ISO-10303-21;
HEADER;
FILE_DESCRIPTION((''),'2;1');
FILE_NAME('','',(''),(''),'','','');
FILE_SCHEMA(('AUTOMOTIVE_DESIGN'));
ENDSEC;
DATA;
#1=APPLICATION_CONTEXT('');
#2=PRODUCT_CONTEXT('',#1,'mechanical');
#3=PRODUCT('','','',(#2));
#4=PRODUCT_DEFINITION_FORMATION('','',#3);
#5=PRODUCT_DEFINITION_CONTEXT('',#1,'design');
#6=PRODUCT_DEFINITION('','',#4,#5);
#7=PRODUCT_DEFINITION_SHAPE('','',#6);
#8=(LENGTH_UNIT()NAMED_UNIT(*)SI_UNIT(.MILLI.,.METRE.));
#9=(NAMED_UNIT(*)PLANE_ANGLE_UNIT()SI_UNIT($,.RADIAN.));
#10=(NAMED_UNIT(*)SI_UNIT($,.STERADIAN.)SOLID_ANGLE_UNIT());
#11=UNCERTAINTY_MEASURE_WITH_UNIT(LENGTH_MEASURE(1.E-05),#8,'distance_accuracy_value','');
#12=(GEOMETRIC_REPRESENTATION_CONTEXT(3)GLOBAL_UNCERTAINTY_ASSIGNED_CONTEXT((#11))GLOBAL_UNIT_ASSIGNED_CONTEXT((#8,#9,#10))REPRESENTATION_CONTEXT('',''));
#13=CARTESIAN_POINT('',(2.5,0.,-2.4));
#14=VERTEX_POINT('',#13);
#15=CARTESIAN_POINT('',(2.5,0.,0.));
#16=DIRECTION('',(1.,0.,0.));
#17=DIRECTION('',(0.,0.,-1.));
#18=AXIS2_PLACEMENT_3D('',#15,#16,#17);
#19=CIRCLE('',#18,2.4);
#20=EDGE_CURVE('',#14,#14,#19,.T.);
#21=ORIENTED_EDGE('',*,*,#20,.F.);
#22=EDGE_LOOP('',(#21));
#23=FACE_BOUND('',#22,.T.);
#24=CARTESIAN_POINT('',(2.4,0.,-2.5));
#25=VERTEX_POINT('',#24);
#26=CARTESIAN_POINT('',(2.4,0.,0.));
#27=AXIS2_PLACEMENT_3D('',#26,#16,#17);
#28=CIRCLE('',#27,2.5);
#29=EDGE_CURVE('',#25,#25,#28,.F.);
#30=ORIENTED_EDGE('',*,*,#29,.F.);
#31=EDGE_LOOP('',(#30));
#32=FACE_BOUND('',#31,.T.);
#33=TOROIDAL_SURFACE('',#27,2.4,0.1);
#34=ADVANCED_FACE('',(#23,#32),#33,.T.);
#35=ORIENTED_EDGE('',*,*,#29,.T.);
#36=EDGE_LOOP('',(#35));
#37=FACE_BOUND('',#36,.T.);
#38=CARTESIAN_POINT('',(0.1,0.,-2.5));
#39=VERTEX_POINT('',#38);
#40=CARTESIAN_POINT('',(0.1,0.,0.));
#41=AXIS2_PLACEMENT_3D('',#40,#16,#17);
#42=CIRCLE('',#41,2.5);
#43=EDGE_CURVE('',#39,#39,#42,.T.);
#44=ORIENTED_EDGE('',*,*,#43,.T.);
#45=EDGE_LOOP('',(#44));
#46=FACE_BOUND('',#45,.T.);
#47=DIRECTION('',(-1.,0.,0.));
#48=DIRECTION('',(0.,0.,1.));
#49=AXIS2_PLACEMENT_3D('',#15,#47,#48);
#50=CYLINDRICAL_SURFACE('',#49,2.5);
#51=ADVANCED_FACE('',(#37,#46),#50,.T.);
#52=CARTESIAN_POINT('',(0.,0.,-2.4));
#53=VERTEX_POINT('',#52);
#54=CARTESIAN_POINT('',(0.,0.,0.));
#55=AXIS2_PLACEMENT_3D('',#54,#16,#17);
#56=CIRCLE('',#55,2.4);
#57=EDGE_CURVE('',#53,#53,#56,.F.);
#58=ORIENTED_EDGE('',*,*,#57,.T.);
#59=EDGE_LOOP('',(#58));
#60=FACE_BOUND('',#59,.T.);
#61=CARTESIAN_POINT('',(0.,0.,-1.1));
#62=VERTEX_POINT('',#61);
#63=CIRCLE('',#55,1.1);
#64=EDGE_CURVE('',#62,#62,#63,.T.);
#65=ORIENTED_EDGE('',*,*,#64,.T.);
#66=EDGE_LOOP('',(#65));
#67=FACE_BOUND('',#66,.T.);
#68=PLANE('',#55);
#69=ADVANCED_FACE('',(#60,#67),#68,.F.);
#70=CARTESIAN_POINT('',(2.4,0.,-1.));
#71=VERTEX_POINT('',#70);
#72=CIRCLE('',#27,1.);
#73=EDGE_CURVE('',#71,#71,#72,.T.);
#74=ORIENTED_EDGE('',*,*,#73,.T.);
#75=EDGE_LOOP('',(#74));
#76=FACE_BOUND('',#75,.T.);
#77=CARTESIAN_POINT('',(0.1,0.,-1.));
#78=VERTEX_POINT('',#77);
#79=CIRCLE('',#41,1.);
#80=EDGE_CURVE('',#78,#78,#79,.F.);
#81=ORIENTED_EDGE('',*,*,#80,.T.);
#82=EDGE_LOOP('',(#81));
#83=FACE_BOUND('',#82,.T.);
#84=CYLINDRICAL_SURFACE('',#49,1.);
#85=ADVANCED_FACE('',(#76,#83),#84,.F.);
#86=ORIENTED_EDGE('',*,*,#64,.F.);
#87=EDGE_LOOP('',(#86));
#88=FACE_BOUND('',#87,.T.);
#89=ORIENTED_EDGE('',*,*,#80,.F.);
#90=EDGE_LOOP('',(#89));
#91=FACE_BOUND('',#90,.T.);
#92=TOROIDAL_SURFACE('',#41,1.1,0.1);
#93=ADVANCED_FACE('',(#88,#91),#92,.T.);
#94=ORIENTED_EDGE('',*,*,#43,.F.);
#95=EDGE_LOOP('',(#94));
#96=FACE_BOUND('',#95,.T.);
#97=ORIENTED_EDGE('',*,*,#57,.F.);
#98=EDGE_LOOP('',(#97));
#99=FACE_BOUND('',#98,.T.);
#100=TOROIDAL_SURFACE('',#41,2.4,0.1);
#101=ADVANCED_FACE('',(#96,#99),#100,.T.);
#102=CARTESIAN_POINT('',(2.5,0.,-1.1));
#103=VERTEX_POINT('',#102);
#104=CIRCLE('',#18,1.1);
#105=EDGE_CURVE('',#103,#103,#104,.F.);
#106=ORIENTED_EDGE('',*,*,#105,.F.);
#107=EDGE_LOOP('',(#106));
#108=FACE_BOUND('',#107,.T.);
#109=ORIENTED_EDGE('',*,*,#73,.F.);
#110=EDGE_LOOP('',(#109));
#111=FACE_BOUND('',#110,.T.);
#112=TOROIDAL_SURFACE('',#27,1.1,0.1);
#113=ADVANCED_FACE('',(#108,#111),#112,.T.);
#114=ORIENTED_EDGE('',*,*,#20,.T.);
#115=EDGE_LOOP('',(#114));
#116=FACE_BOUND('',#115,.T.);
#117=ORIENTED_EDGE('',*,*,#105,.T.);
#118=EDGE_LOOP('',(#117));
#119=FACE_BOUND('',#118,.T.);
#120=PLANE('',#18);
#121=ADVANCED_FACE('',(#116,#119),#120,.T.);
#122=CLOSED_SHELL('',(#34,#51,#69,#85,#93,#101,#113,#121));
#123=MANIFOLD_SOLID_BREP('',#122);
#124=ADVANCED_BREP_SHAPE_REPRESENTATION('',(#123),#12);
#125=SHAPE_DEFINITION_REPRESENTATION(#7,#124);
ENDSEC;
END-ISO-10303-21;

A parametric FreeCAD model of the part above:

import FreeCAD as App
import Part
import Sketcher

V = App.Vector
Q = App.Units.Quantity


def edges_at(feature, points):
    """Names of the edges that pass closest to the given points."""
    edges = feature.Shape.Edges
    near = lambda p: min(range(len(edges)), key=lambda i: edges[i].distToShape(Part.Vertex(*p))[0])
    return sorted({f"Edge{near(p) + 1}" for p in points})

doc = App.newDocument("Part")
body = doc.addObject("PartDesign::Body", "Body")

# Sketch on YZ plane
sketch1 = body.newObject("Sketcher::SketchObject", "Sketch")
sketch1.AttachmentSupport = (doc.getObject("YZ_Plane"), [""])
sketch1.MapMode = "FlatFace"
sketch1.addGeometry([
    Part.Circle(V(0, 0, 0), V(0, 0, 1), 2.5),
    Part.Circle(V(0, 0, 0), V(0, 0, 1), 1),
], False)
sketch1.addConstraint([
    Sketcher.Constraint("Coincident", 0, 3, -1, 1),
    Sketcher.Constraint("Coincident", 1, 3, -1, 1),
    Sketcher.Constraint("Diameter", 0, Q("5 mm")),
    Sketcher.Constraint("Diameter", 1, Q("2 mm")),
])
pad1 = body.newObject("PartDesign::Pad", "Pad")
pad1.Profile = sketch1
pad1.Length = 2.5
doc.recompute()

fillet = body.newObject("PartDesign::Fillet", "Fillet")
fillet.Base = (pad1, edges_at(pad1, [(2.5, 0, 2.5)]))
fillet.Radius = 0.1
doc.recompute()

fillet2 = body.newObject("PartDesign::Fillet", "Fillet001")
fillet2.Base = (fillet, edges_at(fillet, [(2.5, 0, 1)]))
fillet2.Radius = 0.1
doc.recompute()

fillet3 = body.newObject("PartDesign::Fillet", "Fillet002")
fillet3.Base = (fillet2, edges_at(fillet2, [(0, 0, 2.5)]))
fillet3.Radius = 0.1
doc.recompute()

fillet4 = body.newObject("PartDesign::Fillet", "Fillet003")
fillet4.Base = (fillet3, edges_at(fillet3, [(0, 0, 1)]))
fillet4.Radius = 0.1

doc.recompute()
